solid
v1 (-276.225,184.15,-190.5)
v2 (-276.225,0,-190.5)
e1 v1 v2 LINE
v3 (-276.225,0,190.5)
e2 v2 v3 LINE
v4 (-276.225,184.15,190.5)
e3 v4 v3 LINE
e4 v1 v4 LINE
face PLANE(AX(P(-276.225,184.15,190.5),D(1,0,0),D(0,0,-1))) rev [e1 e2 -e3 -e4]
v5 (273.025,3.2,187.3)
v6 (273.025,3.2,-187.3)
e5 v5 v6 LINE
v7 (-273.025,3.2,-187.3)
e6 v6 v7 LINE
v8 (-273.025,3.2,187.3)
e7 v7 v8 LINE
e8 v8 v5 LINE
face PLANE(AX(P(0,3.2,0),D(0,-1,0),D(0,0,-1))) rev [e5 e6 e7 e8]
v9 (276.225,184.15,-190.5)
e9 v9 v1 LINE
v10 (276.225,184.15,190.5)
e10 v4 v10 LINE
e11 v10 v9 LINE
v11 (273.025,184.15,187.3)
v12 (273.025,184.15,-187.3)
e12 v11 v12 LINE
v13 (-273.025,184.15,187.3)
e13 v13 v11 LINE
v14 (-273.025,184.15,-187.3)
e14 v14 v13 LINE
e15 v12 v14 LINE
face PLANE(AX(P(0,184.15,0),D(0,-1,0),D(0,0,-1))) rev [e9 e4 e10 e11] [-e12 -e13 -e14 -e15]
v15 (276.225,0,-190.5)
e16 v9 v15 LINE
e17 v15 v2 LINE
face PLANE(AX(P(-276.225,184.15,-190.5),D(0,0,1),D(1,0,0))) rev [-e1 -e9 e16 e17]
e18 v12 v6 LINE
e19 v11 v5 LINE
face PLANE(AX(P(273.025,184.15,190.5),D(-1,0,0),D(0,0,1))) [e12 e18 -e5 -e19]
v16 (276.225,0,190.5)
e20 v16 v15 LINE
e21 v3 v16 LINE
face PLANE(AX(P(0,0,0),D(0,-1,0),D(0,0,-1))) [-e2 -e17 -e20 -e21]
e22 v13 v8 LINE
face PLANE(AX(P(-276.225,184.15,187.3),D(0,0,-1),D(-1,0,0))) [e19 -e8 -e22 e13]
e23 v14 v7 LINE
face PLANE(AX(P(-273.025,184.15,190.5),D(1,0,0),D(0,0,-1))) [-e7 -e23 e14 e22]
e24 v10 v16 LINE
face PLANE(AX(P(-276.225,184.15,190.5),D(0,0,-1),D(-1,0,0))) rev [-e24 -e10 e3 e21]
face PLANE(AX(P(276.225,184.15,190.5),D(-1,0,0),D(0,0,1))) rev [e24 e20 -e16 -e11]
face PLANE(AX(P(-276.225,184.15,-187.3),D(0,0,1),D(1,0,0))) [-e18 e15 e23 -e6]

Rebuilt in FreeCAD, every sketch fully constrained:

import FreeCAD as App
import Part
import Sketcher

V = App.Vector
Q = App.Units.Quantity


def faces_at(feature, points):
    """Names of the faces that lie closest to the given points."""
    faces = feature.Shape.Faces
    near = lambda p: min(range(len(faces)), key=lambda i: faces[i].distToShape(Part.Vertex(*p))[0])
    return sorted({f"Face{near(p) + 1}" for p in points})

doc = App.newDocument("Part")
params = doc.addObject("Spreadsheet::Sheet", "Params")
for row, (alias, value) in enumerate([
    ("sketch1_height", "15 in"),
    ("sketch1_width", "21.75 in"),
    ("pad1_length", "7.25 in"),
    ("thickness_wall", "3.2 mm"),
], start=1):
    params.set(f"A{row}", alias)
    params.set(f"B{row}", "=" + value)
    params.setAlias(f"B{row}", alias)

body = doc.addObject("PartDesign::Body", "Body")

sketch1 = body.newObject("Sketcher::SketchObject", "Sketch")
sketch1.AttachmentSupport = (doc.getObject("XZ_Plane"), [""])
sketch1.MapMode = "FlatFace"
sketch1.addGeometry([
    Part.LineSegment(V(-276, -190, 0), V(-276, 190, 0)),
    Part.LineSegment(V(-276, 190, 0), V(276, 190, 0)),
    Part.LineSegment(V(276, 190, 0), V(276, -190, 0)),
    Part.LineSegment(V(276, -190, 0), V(-276, -190, 0)),
], False)
sketch1.addConstraint([
    Sketcher.Constraint("Coincident", 0, 2, 1, 1),
    Sketcher.Constraint("Coincident", 1, 2, 2, 1),
    Sketcher.Constraint("Coincident", 2, 2, 3, 1),
    Sketcher.Constraint("Coincident", 3, 2, 0, 1),
    Sketcher.Constraint("Vertical", 0),
    Sketcher.Constraint("Horizontal", 1),
    Sketcher.Constraint("Vertical", 2),
    Sketcher.Constraint("Horizontal", 3),
    Sketcher.Constraint("Symmetric", 0, 2, 2, 2, -1, 1),
    Sketcher.Constraint("DistanceY", 0, 1, 0, 2, Q("15 in")),
    Sketcher.Constraint("DistanceX", 1, 1, 1, 2, Q("21.75 in")),
])
sketch1.setExpression("Constraints[9]", "Params.sketch1_height")
sketch1.setExpression("Constraints[10]", "Params.sketch1_width")
pad1 = body.newObject("PartDesign::Pad", "Pad")
pad1.Profile = sketch1
pad1.setExpression("Length", "Params.pad1_length")
pad1.Reversed = True
doc.recompute()

thickness = body.newObject("PartDesign::Thickness", "Thickness")
thickness.Base = (pad1, faces_at(pad1, [(0, 184.15, 0)]))
thickness.setExpression("Value", "Params.thickness_wall")
thickness.Reversed = True
thickness.Join = "Intersection"

doc.recompute()
